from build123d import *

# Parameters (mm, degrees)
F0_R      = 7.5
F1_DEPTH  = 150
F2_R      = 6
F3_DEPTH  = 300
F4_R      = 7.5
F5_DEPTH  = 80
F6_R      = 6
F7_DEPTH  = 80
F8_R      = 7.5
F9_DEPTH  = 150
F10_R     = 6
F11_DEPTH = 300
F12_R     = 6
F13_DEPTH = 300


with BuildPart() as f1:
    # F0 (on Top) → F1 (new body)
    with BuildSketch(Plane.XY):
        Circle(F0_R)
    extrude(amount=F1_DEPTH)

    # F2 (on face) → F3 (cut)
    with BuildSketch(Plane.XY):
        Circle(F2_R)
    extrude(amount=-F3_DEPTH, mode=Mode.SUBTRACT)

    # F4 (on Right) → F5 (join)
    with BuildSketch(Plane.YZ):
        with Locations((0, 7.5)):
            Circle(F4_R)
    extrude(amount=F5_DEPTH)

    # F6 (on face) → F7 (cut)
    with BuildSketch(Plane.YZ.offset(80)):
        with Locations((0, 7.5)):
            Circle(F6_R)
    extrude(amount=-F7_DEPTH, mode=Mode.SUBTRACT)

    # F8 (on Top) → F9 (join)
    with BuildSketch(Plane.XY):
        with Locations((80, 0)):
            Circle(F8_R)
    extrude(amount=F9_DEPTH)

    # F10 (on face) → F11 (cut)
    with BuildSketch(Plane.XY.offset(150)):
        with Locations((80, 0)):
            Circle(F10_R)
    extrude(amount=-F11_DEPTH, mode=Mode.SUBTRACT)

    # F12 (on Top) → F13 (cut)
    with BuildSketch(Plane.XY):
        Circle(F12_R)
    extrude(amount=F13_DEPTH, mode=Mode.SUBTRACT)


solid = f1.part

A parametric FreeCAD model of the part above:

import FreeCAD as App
import Part
import Sketcher

doc = App.newDocument("Part")
body = doc.addObject("PartDesign::Body", "Body")

# Sketch on XY plane
sketch1 = body.newObject("Sketcher::SketchObject", "Sketch")
sketch1.AttachmentSupport = (doc.getObject("XY_Plane"), [""])
sketch1.MapMode = "FlatFace"
sketch1.addGeometry(Part.Circle(App.Vector(0, 0, 0), App.Vector(0, 0, 1), 8), False)
sketch1.addConstraint([
    Sketcher.Constraint("Coincident", 0, 3, -1, 1),
    Sketcher.Constraint("Diameter", 0, 15.0),
])
pad1 = body.newObject("PartDesign::Pad", "Pad")
pad1.Profile = sketch1
pad1.Length = 150

# Sketch on XY plane
sketch2 = body.newObject("Sketcher::SketchObject", "Sketch001")
sketch2.AttachmentSupport = (doc.getObject("XY_Plane"), [""])
sketch2.MapMode = "FlatFace"
sketch2.addGeometry(Part.Circle(App.Vector(0, 0, 0), App.Vector(0, 0, 1), 6), False)
sketch2.addConstraint([
    Sketcher.Constraint("Coincident", 0, 3, -1, 1),
    Sketcher.Constraint("Diameter", 0, 12.0),
])
pocket1 = body.newObject("PartDesign::Pocket", "Pocket")
pocket1.Profile = sketch2
pocket1.Length = 300

# Sketch on YZ plane
sketch3 = body.newObject("Sketcher::SketchObject", "Sketch002")
sketch3.AttachmentSupport = (doc.getObject("YZ_Plane"), [""])
sketch3.MapMode = "FlatFace"
sketch3.addGeometry(Part.Circle(App.Vector(0, 8, 0), App.Vector(0, 0, 1), 8), False)
sketch3.addConstraint([
    Sketcher.Constraint("PointOnObject", 0, 3, -2),
    Sketcher.Constraint("Diameter", 0, 15.0),
    Sketcher.Constraint("DistanceY", -1, 1, 0, 3, 7.5),
])
pad2 = body.newObject("PartDesign::Pad", "Pad001")
pad2.Profile = sketch3
pad2.Length = 80

# Sketch on YZ plane
sketch4 = body.newObject("Sketcher::SketchObject", "Sketch003")
sketch4.AttachmentSupport = (doc.getObject("YZ_Plane"), [""])
sketch4.MapMode = "FlatFace"
sketch4.AttachmentOffset = App.Placement(App.Vector(0, 0, 80), App.Rotation())
sketch4.addGeometry(Part.Circle(App.Vector(0, 8, 0), App.Vector(0, 0, 1), 6), False)
sketch4.addConstraint([
    Sketcher.Constraint("PointOnObject", 0, 3, -2),
    Sketcher.Constraint("Diameter", 0, 12.0),
    Sketcher.Constraint("DistanceY", -1, 1, 0, 3, 7.5),
])
pocket2 = body.newObject("PartDesign::Pocket", "Pocket001")
pocket2.Profile = sketch4
pocket2.Length = 80

# Sketch on XY plane
sketch5 = body.newObject("Sketcher::SketchObject", "Sketch004")
sketch5.AttachmentSupport = (doc.getObject("XY_Plane"), [""])
sketch5.MapMode = "FlatFace"
sketch5.addGeometry(Part.Circle(App.Vector(80, 0, 0), App.Vector(0, 0, 1), 8), False)
sketch5.addConstraint([
    Sketcher.Constraint("PointOnObject", 0, 3, -1),
    Sketcher.Constraint("Diameter", 0, 15.0),
    Sketcher.Constraint("DistanceX", -1, 1, 0, 3, 80.0),
])
pad3 = body.newObject("PartDesign::Pad", "Pad002")
pad3.Profile = sketch5
pad3.Length = 150

# Sketch on XY plane
sketch6 = body.newObject("Sketcher::SketchObject", "Sketch005")
sketch6.AttachmentSupport = (doc.getObject("XY_Plane"), [""])
sketch6.MapMode = "FlatFace"
sketch6.AttachmentOffset = App.Placement(App.Vector(0, 0, 150), App.Rotation())
sketch6.addGeometry(Part.Circle(App.Vector(80, 0, 0), App.Vector(0, 0, 1), 6), False)
sketch6.addConstraint([
    Sketcher.Constraint("PointOnObject", 0, 3, -1),
    Sketcher.Constraint("Diameter", 0, 12.0),
    Sketcher.Constraint("DistanceX", -1, 1, 0, 3, 80.0),
])
pocket3 = body.newObject("PartDesign::Pocket", "Pocket002")
pocket3.Profile = sketch6
pocket3.Length = 300

# Sketch on XY plane
sketch7 = body.newObject("Sketcher::SketchObject", "Sketch006")
sketch7.AttachmentSupport = (doc.getObject("XY_Plane"), [""])
sketch7.MapMode = "FlatFace"
sketch7.addGeometry(Part.Circle(App.Vector(0, 0, 0), App.Vector(0, 0, 1), 6), False)
sketch7.addConstraint([
    Sketcher.Constraint("Coincident", 0, 3, -1, 1),
    Sketcher.Constraint("Diameter", 0, 12.0),
])
pocket4 = body.newObject("PartDesign::Pocket", "Pocket003")
pocket4.Profile = sketch7
pocket4.Length = 300
pocket4.Reversed = True

doc.recompute()
